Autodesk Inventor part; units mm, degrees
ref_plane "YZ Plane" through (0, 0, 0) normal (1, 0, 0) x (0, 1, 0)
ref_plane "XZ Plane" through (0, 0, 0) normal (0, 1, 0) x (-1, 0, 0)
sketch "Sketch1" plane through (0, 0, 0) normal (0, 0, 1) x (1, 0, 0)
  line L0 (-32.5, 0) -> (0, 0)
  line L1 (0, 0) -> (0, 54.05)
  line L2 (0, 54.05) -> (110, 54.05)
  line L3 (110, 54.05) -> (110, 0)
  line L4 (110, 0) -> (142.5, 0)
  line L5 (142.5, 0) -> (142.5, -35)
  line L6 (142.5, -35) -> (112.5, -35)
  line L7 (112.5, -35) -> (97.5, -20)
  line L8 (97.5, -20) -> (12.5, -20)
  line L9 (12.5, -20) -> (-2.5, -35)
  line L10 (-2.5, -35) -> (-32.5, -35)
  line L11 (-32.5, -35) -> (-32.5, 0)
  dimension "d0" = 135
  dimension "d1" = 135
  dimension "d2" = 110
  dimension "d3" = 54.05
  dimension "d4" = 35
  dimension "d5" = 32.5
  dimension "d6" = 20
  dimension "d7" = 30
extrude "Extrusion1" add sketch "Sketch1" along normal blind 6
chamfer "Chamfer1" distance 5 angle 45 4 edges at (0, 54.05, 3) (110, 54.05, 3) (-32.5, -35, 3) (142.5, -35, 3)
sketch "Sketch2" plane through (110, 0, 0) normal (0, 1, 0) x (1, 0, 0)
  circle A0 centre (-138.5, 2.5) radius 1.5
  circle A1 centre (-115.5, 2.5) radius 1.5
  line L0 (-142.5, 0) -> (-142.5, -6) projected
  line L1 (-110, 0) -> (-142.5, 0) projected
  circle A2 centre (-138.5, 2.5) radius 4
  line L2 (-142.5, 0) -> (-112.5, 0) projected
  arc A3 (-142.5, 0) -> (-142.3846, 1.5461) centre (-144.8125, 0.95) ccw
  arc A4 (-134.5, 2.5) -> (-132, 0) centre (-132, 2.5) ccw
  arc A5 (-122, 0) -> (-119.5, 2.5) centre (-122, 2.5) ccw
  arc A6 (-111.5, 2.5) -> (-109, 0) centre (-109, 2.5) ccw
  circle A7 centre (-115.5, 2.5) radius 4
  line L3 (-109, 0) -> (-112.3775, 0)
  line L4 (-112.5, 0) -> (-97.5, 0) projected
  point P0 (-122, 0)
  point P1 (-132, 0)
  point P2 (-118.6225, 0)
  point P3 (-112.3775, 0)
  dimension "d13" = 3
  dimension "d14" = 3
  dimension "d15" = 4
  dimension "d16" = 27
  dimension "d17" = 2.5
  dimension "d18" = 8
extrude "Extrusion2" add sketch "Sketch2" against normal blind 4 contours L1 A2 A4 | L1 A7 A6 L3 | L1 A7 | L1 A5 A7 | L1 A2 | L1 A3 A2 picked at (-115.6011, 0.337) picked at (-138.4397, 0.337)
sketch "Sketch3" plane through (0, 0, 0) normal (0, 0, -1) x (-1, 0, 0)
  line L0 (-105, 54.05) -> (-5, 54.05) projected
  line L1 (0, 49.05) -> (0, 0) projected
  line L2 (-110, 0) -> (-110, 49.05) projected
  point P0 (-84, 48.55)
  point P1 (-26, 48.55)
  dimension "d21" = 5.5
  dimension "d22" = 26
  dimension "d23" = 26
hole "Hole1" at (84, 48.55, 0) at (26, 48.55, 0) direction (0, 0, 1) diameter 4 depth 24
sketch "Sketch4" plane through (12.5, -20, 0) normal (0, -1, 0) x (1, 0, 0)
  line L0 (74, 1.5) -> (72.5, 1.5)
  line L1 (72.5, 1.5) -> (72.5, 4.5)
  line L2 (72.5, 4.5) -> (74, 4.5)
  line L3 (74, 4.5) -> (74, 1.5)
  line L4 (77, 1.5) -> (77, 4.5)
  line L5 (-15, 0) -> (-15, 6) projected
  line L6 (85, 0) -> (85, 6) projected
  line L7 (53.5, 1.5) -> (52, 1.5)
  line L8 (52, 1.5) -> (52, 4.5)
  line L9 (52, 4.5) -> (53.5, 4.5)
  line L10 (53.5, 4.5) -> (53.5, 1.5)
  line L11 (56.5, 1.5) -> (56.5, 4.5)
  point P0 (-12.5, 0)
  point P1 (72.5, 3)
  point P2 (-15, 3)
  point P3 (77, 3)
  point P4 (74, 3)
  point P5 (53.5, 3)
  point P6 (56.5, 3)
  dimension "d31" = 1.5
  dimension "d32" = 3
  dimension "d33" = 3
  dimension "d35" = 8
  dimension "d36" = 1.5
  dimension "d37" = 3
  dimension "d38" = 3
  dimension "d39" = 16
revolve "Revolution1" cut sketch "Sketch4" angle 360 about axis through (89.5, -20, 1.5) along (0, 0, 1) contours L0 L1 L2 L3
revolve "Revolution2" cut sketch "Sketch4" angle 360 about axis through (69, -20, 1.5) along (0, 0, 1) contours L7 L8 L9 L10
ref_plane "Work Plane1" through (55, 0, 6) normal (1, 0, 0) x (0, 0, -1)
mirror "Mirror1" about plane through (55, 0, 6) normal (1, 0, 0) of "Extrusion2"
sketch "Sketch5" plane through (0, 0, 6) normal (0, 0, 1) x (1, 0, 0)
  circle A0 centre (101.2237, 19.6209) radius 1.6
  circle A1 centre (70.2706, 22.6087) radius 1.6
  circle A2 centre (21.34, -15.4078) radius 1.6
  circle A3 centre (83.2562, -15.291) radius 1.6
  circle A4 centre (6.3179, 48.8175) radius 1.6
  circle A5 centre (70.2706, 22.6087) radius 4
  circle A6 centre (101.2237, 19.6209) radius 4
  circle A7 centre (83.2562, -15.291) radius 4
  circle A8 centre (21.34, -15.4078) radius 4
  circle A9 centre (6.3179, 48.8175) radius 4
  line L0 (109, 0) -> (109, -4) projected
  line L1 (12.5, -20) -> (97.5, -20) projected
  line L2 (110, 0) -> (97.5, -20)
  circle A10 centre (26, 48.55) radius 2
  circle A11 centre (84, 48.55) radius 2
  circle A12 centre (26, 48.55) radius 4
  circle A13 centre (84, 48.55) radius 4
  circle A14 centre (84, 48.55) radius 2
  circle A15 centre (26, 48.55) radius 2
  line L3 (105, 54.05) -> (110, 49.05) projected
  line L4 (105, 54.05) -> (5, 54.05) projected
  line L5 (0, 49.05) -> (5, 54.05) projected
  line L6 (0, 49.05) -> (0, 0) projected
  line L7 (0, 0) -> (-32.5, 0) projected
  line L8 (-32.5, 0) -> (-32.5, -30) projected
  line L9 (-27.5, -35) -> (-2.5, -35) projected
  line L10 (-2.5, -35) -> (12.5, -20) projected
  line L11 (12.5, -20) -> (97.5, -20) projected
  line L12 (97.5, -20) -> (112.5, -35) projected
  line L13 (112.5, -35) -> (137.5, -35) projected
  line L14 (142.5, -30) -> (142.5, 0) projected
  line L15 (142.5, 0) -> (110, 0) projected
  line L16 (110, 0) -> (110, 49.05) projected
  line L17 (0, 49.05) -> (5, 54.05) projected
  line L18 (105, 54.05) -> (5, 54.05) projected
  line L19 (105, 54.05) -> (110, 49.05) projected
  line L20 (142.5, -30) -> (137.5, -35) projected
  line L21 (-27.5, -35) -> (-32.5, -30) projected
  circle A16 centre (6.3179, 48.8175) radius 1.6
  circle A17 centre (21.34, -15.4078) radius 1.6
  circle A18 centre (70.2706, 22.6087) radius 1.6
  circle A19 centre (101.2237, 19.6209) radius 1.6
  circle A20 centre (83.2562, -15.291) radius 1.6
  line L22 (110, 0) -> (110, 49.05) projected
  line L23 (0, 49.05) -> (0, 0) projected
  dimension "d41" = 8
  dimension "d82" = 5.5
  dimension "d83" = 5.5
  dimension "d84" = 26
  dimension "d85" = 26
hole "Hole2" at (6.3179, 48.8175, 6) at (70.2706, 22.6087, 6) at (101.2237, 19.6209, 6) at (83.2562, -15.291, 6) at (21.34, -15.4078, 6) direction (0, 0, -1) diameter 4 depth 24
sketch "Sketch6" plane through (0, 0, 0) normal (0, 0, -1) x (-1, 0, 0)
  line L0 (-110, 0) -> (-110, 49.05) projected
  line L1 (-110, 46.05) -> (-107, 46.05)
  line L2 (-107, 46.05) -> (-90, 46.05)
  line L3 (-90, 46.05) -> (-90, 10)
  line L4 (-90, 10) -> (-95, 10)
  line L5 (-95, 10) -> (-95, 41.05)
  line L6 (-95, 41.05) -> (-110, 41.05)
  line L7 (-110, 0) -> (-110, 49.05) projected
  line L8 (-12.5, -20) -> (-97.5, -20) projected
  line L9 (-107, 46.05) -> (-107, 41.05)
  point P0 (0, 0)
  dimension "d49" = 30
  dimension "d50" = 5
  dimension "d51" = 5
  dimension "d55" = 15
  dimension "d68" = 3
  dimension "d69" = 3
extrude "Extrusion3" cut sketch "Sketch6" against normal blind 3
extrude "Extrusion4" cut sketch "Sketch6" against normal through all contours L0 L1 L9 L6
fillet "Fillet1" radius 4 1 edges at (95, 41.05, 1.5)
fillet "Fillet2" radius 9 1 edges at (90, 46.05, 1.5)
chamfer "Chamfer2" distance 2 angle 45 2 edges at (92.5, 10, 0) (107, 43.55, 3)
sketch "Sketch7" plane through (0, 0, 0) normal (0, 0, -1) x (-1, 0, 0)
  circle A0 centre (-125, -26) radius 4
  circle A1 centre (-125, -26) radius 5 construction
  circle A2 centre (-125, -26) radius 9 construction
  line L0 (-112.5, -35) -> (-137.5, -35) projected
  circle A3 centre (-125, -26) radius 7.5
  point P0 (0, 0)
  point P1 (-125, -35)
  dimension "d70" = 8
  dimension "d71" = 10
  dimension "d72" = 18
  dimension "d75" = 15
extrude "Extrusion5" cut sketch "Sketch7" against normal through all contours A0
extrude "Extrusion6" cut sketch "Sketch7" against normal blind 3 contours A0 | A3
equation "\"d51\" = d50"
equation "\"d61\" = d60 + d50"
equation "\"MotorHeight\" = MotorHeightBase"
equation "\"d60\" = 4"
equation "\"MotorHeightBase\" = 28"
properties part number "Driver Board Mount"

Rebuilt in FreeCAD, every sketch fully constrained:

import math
import FreeCAD as App
import Part
import Sketcher

V = App.Vector


def edges_at(feature, points):
    """Names of the edges that pass closest to the given points."""
    edges = feature.Shape.Edges
    near = lambda p: min(range(len(edges)), key=lambda i: edges[i].distToShape(Part.Vertex(*p))[0])
    return sorted({f"Edge{near(p) + 1}" for p in points})

doc = App.newDocument("Part")
body = doc.addObject("PartDesign::Body", "Body")

sketch1 = body.newObject("Sketcher::SketchObject", "Sketch")
sketch1.AttachmentSupport = (doc.getObject("XY_Plane"), [""])
sketch1.MapMode = "FlatFace"
sketch1.addGeometry([
    Part.LineSegment(V(0, 0, 0), V(-32, 0, 0)),
    Part.LineSegment(V(-32, 0, 0), V(-32, -35, 0)),
    Part.LineSegment(V(-32, -35, 0), V(-2, -35, 0)),
    Part.LineSegment(V(-2, -35, 0), V(12, -20, 0)),
    Part.LineSegment(V(12, -20, 0), V(98, -20, 0)),
    Part.LineSegment(V(98, -20, 0), V(112, -35, 0)),
    Part.LineSegment(V(112, -35, 0), V(142, -35, 0)),
    Part.LineSegment(V(142, -35, 0), V(142, 0, 0)),
    Part.LineSegment(V(142, 0, 0), V(110, 0, 0)),
    Part.LineSegment(V(110, 0, 0), V(110, 54, 0)),
    Part.LineSegment(V(110, 54, 0), V(0, 54, 0)),
    Part.LineSegment(V(0, 54, 0), V(0, 0, 0)),
], False)
sketch1.addConstraint([
    Sketcher.Constraint("Coincident", 0, 2, 1, 1),
    Sketcher.Constraint("Coincident", 1, 2, 2, 1),
    Sketcher.Constraint("Coincident", 2, 2, 3, 1),
    Sketcher.Constraint("Coincident", 3, 2, 4, 1),
    Sketcher.Constraint("Coincident", 4, 2, 5, 1),
    Sketcher.Constraint("Coincident", 5, 2, 6, 1),
    Sketcher.Constraint("Coincident", 6, 2, 7, 1),
    Sketcher.Constraint("Coincident", 7, 2, 8, 1),
    Sketcher.Constraint("Coincident", 8, 2, 9, 1),
    Sketcher.Constraint("Coincident", 9, 2, 10, 1),
    Sketcher.Constraint("Coincident", 10, 2, 11, 1),
    Sketcher.Constraint("Coincident", 11, 2, 0, 1),
    Sketcher.Constraint("Horizontal", 0),
    Sketcher.Constraint("Vertical", 1),
    Sketcher.Constraint("Horizontal", 2),
    Sketcher.Constraint("Horizontal", 4),
    Sketcher.Constraint("Horizontal", 6),
    Sketcher.Constraint("Vertical", 7),
    Sketcher.Constraint("Horizontal", 8),
    Sketcher.Constraint("Vertical", 9),
    Sketcher.Constraint("Horizontal", 10),
    Sketcher.Constraint("Vertical", 11),
    Sketcher.Constraint("Coincident", 11, 2, -1, 1),
    Sketcher.Constraint("PointOnObject", 7, 2, -1),
    Sketcher.Constraint("Perpendicular", 3, 5),
    Sketcher.Constraint("Horizontal", 2, 2, 5, 2),
    Sketcher.Constraint("Equal", 2, 6),
    Sketcher.Constraint("Equal", 0, 8),
    Sketcher.Constraint("Equal", 3, 5),
    Sketcher.Constraint("DistanceX", 2, 1, 2, 2, 30.0),
    Sketcher.Constraint("DistanceX", 10, 2, 10, 1, 110.0),
    Sketcher.Constraint("DistanceY", 1, 2, 1, 1, 35.0),
    Sketcher.Constraint("DistanceX", 0, 2, 0, 1, 32.5),
    Sketcher.Constraint("DistanceY", 3, 2, -1, 1, 20.0),
    Sketcher.Constraint("DistanceY", 9, 1, 9, 2, 54.05),
])
pad1 = body.newObject("PartDesign::Pad", "Pad")
pad1.Profile = sketch1
pad1.Length = 6
doc.recompute()

chamfer = body.newObject("PartDesign::Chamfer", "Chamfer")
chamfer.Base = (pad1, edges_at(pad1, [
    (0, 54.05, 3),
    (110, 54.05, 3),
    (-32.5, -35, 3),
    (142.5, -35, 3),
]))
chamfer.Size = 5

sketch2 = body.newObject("Sketcher::SketchObject", "Sketch001")
sketch2.AttachmentSupport = (doc.getObject("XZ_Plane"), [""])
sketch2.MapMode = "FlatFace"
sketch2.addGeometry([
    Part.ArcOfCircle(Part.Circle(V(-22, -2.5, 0), V(0, 0, 1), 2.5), math.radians(90), math.radians(180)),
    Part.ArcOfCircle(Part.Circle(V(-28.5, -2.5, 0), V(0, 0, 1), 4), math.radians(166), math.radians(360)),
    Part.ArcOfCircle(Part.Circle(V(-34.8, -0.9, 0), V(0, 0, 1), 2.5), math.radians(-14), math.radians(22)),
    Part.LineSegment(V(-32.5, 0, 0), V(-22, 0, 0)),
    Part.Circle(V(-28.5, -2.5, 0), V(0, 0, 1), 1.5),
    Part.ArcOfCircle(Part.Circle(V(1, -2.5, 0), V(0, 0, 1), 2.5), math.radians(90), math.radians(180)),
    Part.ArcOfCircle(Part.Circle(V(-5.5, -2.5, 0), V(0, 0, 1), 4), math.radians(180), math.radians(360)),
    Part.ArcOfCircle(Part.Circle(V(-12, -2.5, 0), V(0, 0, 1), 2.5), math.radians(0), math.radians(90)),
    Part.LineSegment(V(-12, 0, 0), V(1, 0, 0)),
    Part.Circle(V(-5.5, -2.5, 0), V(0, 0, 1), 1.5),
], False)
sketch2.addConstraint([
    Sketcher.Constraint("Tangent", 0, 2, 1, 2),
    Sketcher.Constraint("Tangent", 1, 1, 2, 1),
    Sketcher.Constraint("Coincident", 2, 2, 3, 1),
    Sketcher.Constraint("Tangent", 3, 2, 0, 1),
    Sketcher.Constraint("Tangent", 5, 2, 6, 2),
    Sketcher.Constraint("Tangent", 6, 1, 7, 1),
    Sketcher.Constraint("Tangent", 7, 2, 8, 1),
    Sketcher.Constraint("Tangent", 8, 2, 5, 1),
    Sketcher.Constraint("Horizontal", 3),
    Sketcher.Constraint("Horizontal", 8),
    Sketcher.Constraint("Coincident", 4, 3, 1, 3),
    Sketcher.Constraint("Coincident", 9, 3, 6, 3),
    Sketcher.Constraint("Equal", 0, 2),
    Sketcher.Constraint("Equal", 2, 5),
    Sketcher.Constraint("Equal", 1, 6),
    Sketcher.Constraint("Equal", 5, 7),
    Sketcher.Constraint("Equal", 4, 9),
    Sketcher.Constraint("PointOnObject", 2, 2, -1),
    Sketcher.Constraint("PointOnObject", 7, 2, -1),
    Sketcher.Constraint("Horizontal", 0, 3, 1, 3),
    Sketcher.Constraint("Horizontal", 5, 3, 6, 3),
    Sketcher.Constraint("Diameter", 4, 3.0),
    Sketcher.Constraint("Radius", 1, 4.0),
    Sketcher.Constraint("Radius", 0, 2.5),
    Sketcher.Constraint("DistanceX", 2, 2, 1, 3, 4.0),
    Sketcher.Constraint("DistanceX", 0, 3, -1, 1, 22.0),
    Sketcher.Constraint("DistanceX", -1, 1, 5, 3, 1.0),
])
pad2 = body.newObject("PartDesign::Pad", "Pad001")
pad2.Profile = sketch2
pad2.Length = 4

sketch3 = body.newObject("Sketcher::SketchObject", "Sketch002")
sketch3.AttachmentSupport = (doc.getObject("XY_Plane"), [""])
sketch3.MapMode = "FlatFace"
sketch3.addGeometry([
    Part.Circle(V(84, 48.5, 0), V(0, 0, 1), 2),
    Part.Circle(V(26, 48.5, 0), V(0, 0, 1), 2),
], False)
sketch3.addConstraint([
    Sketcher.Constraint("Equal", 0, 1),
    Sketcher.Constraint("Horizontal", 0, 3, 1, 3),
    Sketcher.Constraint("Diameter", 0, 4.0),
    Sketcher.Constraint("DistanceX", -1, 1, 0, 3, 84.0),
    Sketcher.Constraint("DistanceX", -1, 1, 1, 3, 26.0),
    Sketcher.Constraint("DistanceY", -1, 1, 0, 3, 48.55),
])
doc.recompute()
hole = body.newObject("PartDesign::Hole", "Hole")
hole.Profile = sketch3
hole.ThreadType = "None"
hole.Diameter = 4
hole.DepthType = "Dimension"
hole.Depth = 24
hole.DrillPoint = "Flat"
hole.Reversed = True

sketch4 = body.newObject("Sketcher::SketchObject", "Sketch003")
sketch4.AttachmentSupport = (doc.getObject("XZ_Plane"), [""])
sketch4.MapMode = "FlatFace"
sketch4.AttachmentOffset = App.Placement(V(0, 0, 20), App.Rotation())
sketch4.addGeometry([
    Part.LineSegment(V(85, 1.5, 0), V(86.5, 1.5, 0)),
    Part.LineSegment(V(86.5, 1.5, 0), V(86.5, 4.5, 0)),
    Part.LineSegment(V(86.5, 4.5, 0), V(85, 4.5, 0)),
    Part.LineSegment(V(85, 4.5, 0), V(85, 1.5, 0)),
], False)
sketch4.addGeometry(Part.LineSegment(V(89.5, 1.5, 0), V(89.5, 4.5, 0)), True)
sketch4.addConstraint([
    Sketcher.Constraint("Coincident", 0, 2, 1, 1),
    Sketcher.Constraint("Coincident", 1, 2, 2, 1),
    Sketcher.Constraint("Coincident", 2, 2, 3, 1),
    Sketcher.Constraint("Coincident", 3, 2, 0, 1),
    Sketcher.Constraint("Horizontal", 0),
    Sketcher.Constraint("Vertical", 1),
    Sketcher.Constraint("Horizontal", 2),
    Sketcher.Constraint("Vertical", 3),
    Sketcher.Constraint("Vertical", 4),
    Sketcher.Constraint("Horizontal", 3, 2, 4, 1),
    Sketcher.Constraint("Horizontal", 2, 2, 4, 2),
    Sketcher.Constraint("DistanceY", 1, 1, 1, 2, 3.0),
    Sketcher.Constraint("DistanceX", 0, 1, 0, 2, 1.5),
    Sketcher.Constraint("DistanceX", 0, 2, 4, 1, 3.0),
    Sketcher.Constraint("DistanceY", -1, 1, 0, 2, 1.5),
    Sketcher.Constraint("DistanceX", -1, 1, 2, 2, 85.0),
])
groove = body.newObject("PartDesign::Groove", "Groove")
groove.Profile = sketch4
groove.ReferenceAxis = (sketch4, ["Axis0"])
groove.Angle = 360

sketch5 = body.newObject("Sketcher::SketchObject", "Sketch004")
sketch5.AttachmentSupport = (doc.getObject("XZ_Plane"), [""])
sketch5.MapMode = "FlatFace"
sketch5.AttachmentOffset = App.Placement(V(0, 0, 20), App.Rotation())
sketch5.addGeometry([
    Part.LineSegment(V(64.5, 1.5, 0), V(66, 1.5, 0)),
    Part.LineSegment(V(66, 1.5, 0), V(66, 4.5, 0)),
    Part.LineSegment(V(66, 4.5, 0), V(64.5, 4.5, 0)),
    Part.LineSegment(V(64.5, 4.5, 0), V(64.5, 1.5, 0)),
], False)
sketch5.addGeometry(Part.LineSegment(V(69, 1.5, 0), V(69, 4.5, 0)), True)
sketch5.addConstraint([
    Sketcher.Constraint("Coincident", 0, 2, 1, 1),
    Sketcher.Constraint("Coincident", 1, 2, 2, 1),
    Sketcher.Constraint("Coincident", 2, 2, 3, 1),
    Sketcher.Constraint("Coincident", 3, 2, 0, 1),
    Sketcher.Constraint("Horizontal", 0),
    Sketcher.Constraint("Vertical", 1),
    Sketcher.Constraint("Horizontal", 2),
    Sketcher.Constraint("Vertical", 3),
    Sketcher.Constraint("Vertical", 4),
    Sketcher.Constraint("Horizontal", 3, 2, 4, 1),
    Sketcher.Constraint("Horizontal", 2, 2, 4, 2),
    Sketcher.Constraint("DistanceY", 1, 1, 1, 2, 3.0),
    Sketcher.Constraint("DistanceX", 0, 1, 0, 2, 1.5),
    Sketcher.Constraint("DistanceX", 0, 2, 4, 1, 3.0),
    Sketcher.Constraint("DistanceY", -1, 1, 0, 2, 1.5),
    Sketcher.Constraint("DistanceX", -1, 1, 0, 2, 66.0),
])
groove2 = body.newObject("PartDesign::Groove", "Groove001")
groove2.Profile = sketch5
groove2.ReferenceAxis = (sketch5, ["Axis0"])
groove2.Angle = 360
doc.recompute()

datumplane = body.newObject("PartDesign::Plane", "DatumPlane")
datumplane.AttachmentSupport = (doc.getObject("YZ_Plane"), [""])
datumplane.MapMode = "FlatFace"
datumplane.AttachmentOffset = App.Placement(V(0, 0, 55), App.Rotation())
mirrored = body.newObject("PartDesign::Mirrored", "Mirrored")
mirrored.Originals = [pad2]
mirrored.MirrorPlane = (datumplane, [""])
body.Tip = mirrored

sketch6 = body.newObject("Sketcher::SketchObject", "Sketch005")
sketch6.AttachmentSupport = (doc.getObject("XY_Plane"), [""])
sketch6.MapMode = "FlatFace"
sketch6.AttachmentOffset = App.Placement(V(0, 0, 6), App.Rotation())
sketch6.addGeometry([
    Part.Circle(V(6.3, 48.8, 0), V(0, 0, 1), 2),
    Part.Circle(V(70.3, 22.6, 0), V(0, 0, 1), 2),
    Part.Circle(V(101.2, 19.6, 0), V(0, 0, 1), 2),
    Part.Circle(V(83.3, -15.3, 0), V(0, 0, 1), 2),
    Part.Circle(V(21.3, -15.4, 0), V(0, 0, 1), 2),
], False)
sketch6.addConstraint([
    Sketcher.Constraint("Equal", 0, 1),
    Sketcher.Constraint("Equal", 1, 2),
    Sketcher.Constraint("Equal", 2, 3),
    Sketcher.Constraint("Equal", 3, 4),
    Sketcher.Constraint("Diameter", 0, 4.0),
    Sketcher.Constraint("DistanceX", -1, 1, 4, 3, 21.34),
    Sketcher.Constraint("DistanceX", -1, 1, 0, 3, 6.318),
    Sketcher.Constraint("DistanceY", -1, 1, 2, 3, 19.621),
    Sketcher.Constraint("DistanceY", 3, 3, -1, 1, 15.291),
    Sketcher.Constraint("DistanceX", 1, 3, 2, 3, 30.953),
    Sketcher.Constraint("DistanceY", -1, 1, 0, 3, 48.8175),
    Sketcher.Constraint("DistanceX", -1, 1, 1, 3, 70.2706),
    Sketcher.Constraint("DistanceY", -1, 1, 1, 3, 22.6087),
    Sketcher.Constraint("DistanceX", -1, 1, 3, 3, 83.2562),
    Sketcher.Constraint("DistanceY", 4, 3, -1, 1, 15.4078),
])
doc.recompute()
hole2 = body.newObject("PartDesign::Hole", "Hole001")
hole2.Profile = sketch6
hole2.ThreadType = "None"
hole2.Diameter = 4
hole2.DepthType = "Dimension"
hole2.Depth = 24
hole2.DrillPoint = "Flat"

sketch7 = body.newObject("Sketcher::SketchObject", "Sketch006")
sketch7.AttachmentSupport = (doc.getObject("XY_Plane"), [""])
sketch7.MapMode = "FlatFace"
sketch7.addGeometry([
    Part.LineSegment(V(110, 46, 0), V(110, 41, 0)),
    Part.LineSegment(V(110, 41, 0), V(95, 41, 0)),
    Part.LineSegment(V(95, 41, 0), V(95, 10, 0)),
    Part.LineSegment(V(95, 10, 0), V(90, 10, 0)),
    Part.LineSegment(V(90, 10, 0), V(90, 46, 0)),
    Part.LineSegment(V(90, 46, 0), V(110, 46, 0)),
], False)
sketch7.addConstraint([
    Sketcher.Constraint("Coincident", 0, 2, 1, 1),
    Sketcher.Constraint("Coincident", 1, 2, 2, 1),
    Sketcher.Constraint("Coincident", 2, 2, 3, 1),
    Sketcher.Constraint("Coincident", 3, 2, 4, 1),
    Sketcher.Constraint("Coincident", 4, 2, 5, 1),
    Sketcher.Constraint("Coincident", 5, 2, 0, 1),
    Sketcher.Constraint("Vertical", 0),
    Sketcher.Constraint("Horizontal", 1),
    Sketcher.Constraint("Vertical", 2),
    Sketcher.Constraint("Horizontal", 3),
    Sketcher.Constraint("Vertical", 4),
    Sketcher.Constraint("Horizontal", 5),
    Sketcher.Constraint("Equal", 3, 0),
    Sketcher.Constraint("DistanceX", 1, 2, 1, 1, 15.0),
    Sketcher.Constraint("DistanceX", 3, 2, 3, 1, 5.0),
    Sketcher.Constraint("DistanceX", -1, 1, 0, 2, 110.0),
    Sketcher.Constraint("DistanceY", -1, 1, 2, 2, 10.0),
    Sketcher.Constraint("DistanceY", 2, 2, 2, 1, 31.05),
])
pocket1 = body.newObject("PartDesign::Pocket", "Pocket")
pocket1.Profile = sketch7
pocket1.Length = 3
pocket1.Reversed = True

sketch8 = body.newObject("Sketcher::SketchObject", "Sketch007")
sketch8.AttachmentSupport = (doc.getObject("XY_Plane"), [""])
sketch8.MapMode = "FlatFace"
sketch8.addGeometry([
    Part.LineSegment(V(110, 46, 0), V(110, 41, 0)),
    Part.LineSegment(V(110, 41, 0), V(107, 41, 0)),
    Part.LineSegment(V(107, 41, 0), V(107, 46, 0)),
    Part.LineSegment(V(107, 46, 0), V(110, 46, 0)),
], False)
sketch8.addConstraint([
    Sketcher.Constraint("Coincident", 0, 2, 1, 1),
    Sketcher.Constraint("Coincident", 1, 2, 2, 1),
    Sketcher.Constraint("Coincident", 2, 2, 3, 1),
    Sketcher.Constraint("Coincident", 3, 2, 0, 1),
    Sketcher.Constraint("Vertical", 0),
    Sketcher.Constraint("Horizontal", 1),
    Sketcher.Constraint("Vertical", 2),
    Sketcher.Constraint("Horizontal", 3),
    Sketcher.Constraint("DistanceX", 1, 2, 1, 1, 3.0),
    Sketcher.Constraint("DistanceY", 0, 2, 0, 1, 5.0),
    Sketcher.Constraint("DistanceX", -1, 1, 0, 2, 110.0),
    Sketcher.Constraint("DistanceY", -1, 1, 0, 2, 41.05),
])
pocket2 = body.newObject("PartDesign::Pocket", "Pocket001")
pocket2.Profile = sketch8
pocket2.Type = "ThroughAll"
pocket2.Reversed = True
doc.recompute()

fillet = body.newObject("PartDesign::Fillet", "Fillet")
fillet.Base = (pocket2, edges_at(pocket2, [(95, 41.05, 1.5)]))
fillet.Radius = 4
doc.recompute()

fillet2 = body.newObject("PartDesign::Fillet", "Fillet001")
fillet2.Base = (fillet, edges_at(fillet, [(90, 46.05, 1.5)]))
fillet2.Radius = 9
doc.recompute()

chamfer2 = body.newObject("PartDesign::Chamfer", "Chamfer001")
chamfer2.Base = (fillet2, edges_at(fillet2, [(92.5, 10, 0), (107, 43.55, 3)]))
chamfer2.Size = 2

sketch9 = body.newObject("Sketcher::SketchObject", "Sketch008")
sketch9.AttachmentSupport = (doc.getObject("XY_Plane"), [""])
sketch9.MapMode = "FlatFace"
sketch9.addGeometry(Part.Circle(V(125, -26, 0), V(0, 0, 1), 4), False)
sketch9.addConstraint([
    Sketcher.Constraint("Diameter", 0, 8.0),
    Sketcher.Constraint("DistanceX", -1, 1, 0, 3, 125.0),
    Sketcher.Constraint("DistanceY", 0, 3, -1, 1, 26.0),
])
pocket3 = body.newObject("PartDesign::Pocket", "Pocket002")
pocket3.Profile = sketch9
pocket3.Type = "ThroughAll"
pocket3.Reversed = True

sketch10 = body.newObject("Sketcher::SketchObject", "Sketch009")
sketch10.AttachmentSupport = (doc.getObject("XY_Plane"), [""])
sketch10.MapMode = "FlatFace"
sketch10.addGeometry(Part.Circle(V(125, -26, 0), V(0, 0, 1), 8), False)
sketch10.addConstraint([
    Sketcher.Constraint("Diameter", 0, 15.0),
    Sketcher.Constraint("DistanceX", -1, 1, 0, 3, 125.0),
    Sketcher.Constraint("DistanceY", 0, 3, -1, 1, 26.0),
])
pocket4 = body.newObject("PartDesign::Pocket", "Pocket003")
pocket4.Profile = sketch10
pocket4.Length = 3
pocket4.Reversed = True

doc.recompute()
